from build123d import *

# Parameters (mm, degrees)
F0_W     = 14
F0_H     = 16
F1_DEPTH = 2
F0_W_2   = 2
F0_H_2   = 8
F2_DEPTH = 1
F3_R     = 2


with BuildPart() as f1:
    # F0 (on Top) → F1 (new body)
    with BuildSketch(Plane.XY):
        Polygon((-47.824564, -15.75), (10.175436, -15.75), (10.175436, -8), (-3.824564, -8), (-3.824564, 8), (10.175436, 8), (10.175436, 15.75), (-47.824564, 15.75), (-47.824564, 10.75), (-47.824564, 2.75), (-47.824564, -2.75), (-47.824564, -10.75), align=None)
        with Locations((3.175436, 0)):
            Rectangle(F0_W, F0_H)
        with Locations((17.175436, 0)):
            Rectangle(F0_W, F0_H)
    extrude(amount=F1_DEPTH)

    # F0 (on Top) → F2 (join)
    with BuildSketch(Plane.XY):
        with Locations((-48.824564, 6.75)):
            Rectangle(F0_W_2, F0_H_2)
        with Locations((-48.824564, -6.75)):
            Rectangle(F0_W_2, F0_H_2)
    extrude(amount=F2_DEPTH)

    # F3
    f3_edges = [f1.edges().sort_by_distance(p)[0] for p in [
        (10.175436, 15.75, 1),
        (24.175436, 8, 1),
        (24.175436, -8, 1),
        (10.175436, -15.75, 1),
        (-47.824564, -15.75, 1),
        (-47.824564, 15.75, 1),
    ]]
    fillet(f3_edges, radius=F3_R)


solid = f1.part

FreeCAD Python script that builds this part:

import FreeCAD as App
import Part
import Sketcher

V = App.Vector


def edges_at(feature, points):
    """Names of the edges that pass closest to the given points."""
    edges = feature.Shape.Edges
    near = lambda p: min(range(len(edges)), key=lambda i: edges[i].distToShape(Part.Vertex(*p))[0])
    return sorted({f"Edge{near(p) + 1}" for p in points})

doc = App.newDocument("Part")
body = doc.addObject("PartDesign::Body", "Body")

# Sketch on XY plane
sketch1 = body.newObject("Sketcher::SketchObject", "Sketch")
sketch1.AttachmentSupport = (doc.getObject("XY_Plane"), [""])
sketch1.MapMode = "FlatFace"
sketch1.addGeometry([
    Part.LineSegment(V(-48, -16, 0), V(10, -16, 0)),  # 0
    Part.LineSegment(V(10, -16, 0), V(10, -8, 0)),  # 1
    Part.LineSegment(V(10, -8, 0), V(24, -8, 0)),  # 2
    Part.LineSegment(V(24, -8, 0), V(24, 8, 0)),  # 3
    Part.LineSegment(V(24, 8, 0), V(10, 8, 0)),  # 4
    Part.LineSegment(V(10, 8, 0), V(10, 16, 0)),  # 5
    Part.LineSegment(V(10, 16, 0), V(-48, 16, 0)),  # 6
    Part.LineSegment(V(-48, 16, 0), V(-48, -16, 0)),  # 7
], False)
sketch1.addConstraint([
    Sketcher.Constraint("Coincident", 0, 2, 1, 1),
    Sketcher.Constraint("Coincident", 1, 2, 2, 1),
    Sketcher.Constraint("Coincident", 2, 2, 3, 1),
    Sketcher.Constraint("Coincident", 3, 2, 4, 1),
    Sketcher.Constraint("Coincident", 4, 2, 5, 1),
    Sketcher.Constraint("Coincident", 5, 2, 6, 1),
    Sketcher.Constraint("Coincident", 6, 2, 7, 1),
    Sketcher.Constraint("Coincident", 7, 2, 0, 1),
    Sketcher.Constraint("Horizontal", 0),
    Sketcher.Constraint("Vertical", 1),
    Sketcher.Constraint("Horizontal", 2),
    Sketcher.Constraint("Vertical", 3),
    Sketcher.Constraint("Horizontal", 4),
    Sketcher.Constraint("Vertical", 5),
    Sketcher.Constraint("Horizontal", 6),
    Sketcher.Constraint("Vertical", 7),
    Sketcher.Constraint("Symmetric", 1, 2, 4, 2, -1),
    Sketcher.Constraint("Equal", 1, 5),
    Sketcher.Constraint("DistanceX", 0, 1, 0, 2, 58.0),
    Sketcher.Constraint("DistanceX", 2, 1, 2, 2, 14.0),
    Sketcher.Constraint("DistanceY", 3, 1, 3, 2, 16.0),
    Sketcher.Constraint("DistanceY", 7, 2, 7, 1, 31.5),
    Sketcher.Constraint("DistanceX", -1, 1, 0, 2, 10.175436),
])
pad1 = body.newObject("PartDesign::Pad", "Pad")
pad1.Profile = sketch1
pad1.Length = 2

# Sketch on XY plane
sketch2 = body.newObject("Sketcher::SketchObject", "Sketch001")
sketch2.AttachmentSupport = (doc.getObject("XY_Plane"), [""])
sketch2.MapMode = "FlatFace"
sketch2.addGeometry([
    Part.LineSegment(V(-49.8, 10.8, 0), V(-49.8, 2.8, 0)),  # 0
    Part.LineSegment(V(-49.8, 2.8, 0), V(-47.8, 2.8, 0)),  # 1
    Part.LineSegment(V(-47.8, 2.8, 0), V(-47.8, 10.8, 0)),  # 2
    Part.LineSegment(V(-47.8, 10.8, 0), V(-49.8, 10.8, 0)),  # 3
    Part.LineSegment(V(-49.8, -2.8, 0), V(-49.8, -10.8, 0)),  # 4
    Part.LineSegment(V(-49.8, -10.8, 0), V(-47.8, -10.8, 0)),  # 5
    Part.LineSegment(V(-47.8, -10.8, 0), V(-47.8, -2.8, 0)),  # 6
    Part.LineSegment(V(-47.8, -2.8, 0), V(-49.8, -2.8, 0)),  # 7
], False)
sketch2.addConstraint([
    Sketcher.Constraint("Coincident", 0, 2, 1, 1),
    Sketcher.Constraint("Coincident", 1, 2, 2, 1),
    Sketcher.Constraint("Coincident", 2, 2, 3, 1),
    Sketcher.Constraint("Coincident", 3, 2, 0, 1),
    Sketcher.Constraint("Coincident", 4, 2, 5, 1),
    Sketcher.Constraint("Coincident", 5, 2, 6, 1),
    Sketcher.Constraint("Coincident", 6, 2, 7, 1),
    Sketcher.Constraint("Coincident", 7, 2, 4, 1),
    Sketcher.Constraint("Vertical", 0),
    Sketcher.Constraint("Horizontal", 1),
    Sketcher.Constraint("Vertical", 2),
    Sketcher.Constraint("Horizontal", 3),
    Sketcher.Constraint("Vertical", 4),
    Sketcher.Constraint("Horizontal", 5),
    Sketcher.Constraint("Vertical", 6),
    Sketcher.Constraint("Horizontal", 7),
    Sketcher.Constraint("Symmetric", 3, 2, 4, 2, -1),
    Sketcher.Constraint("Symmetric", 1, 2, 6, 2, -1),
    Sketcher.Constraint("DistanceX", 1, 1, 1, 2, 2.0),
    Sketcher.Constraint("DistanceY", 0, 2, 0, 1, 8.0),
    Sketcher.Constraint("DistanceY", 4, 2, 0, 2, 13.5),
    Sketcher.Constraint("DistanceX", 0, 2, -1, 1, 49.824564),
])
pad2 = body.newObject("PartDesign::Pad", "Pad001")
pad2.Profile = sketch2
pad2.Length = 1
doc.recompute()

fillet = body.newObject("PartDesign::Fillet", "Fillet")
fillet.Base = (pad2, edges_at(pad2, [
    (10.175, 15.75, 1),
    (24.175, 8, 1),
    (24.175, -8, 1),
    (10.175, -15.75, 1),
    (-47.825, -15.75, 1),
    (-47.825, 15.75, 1),
]))
fillet.Radius = 2

doc.recompute()
